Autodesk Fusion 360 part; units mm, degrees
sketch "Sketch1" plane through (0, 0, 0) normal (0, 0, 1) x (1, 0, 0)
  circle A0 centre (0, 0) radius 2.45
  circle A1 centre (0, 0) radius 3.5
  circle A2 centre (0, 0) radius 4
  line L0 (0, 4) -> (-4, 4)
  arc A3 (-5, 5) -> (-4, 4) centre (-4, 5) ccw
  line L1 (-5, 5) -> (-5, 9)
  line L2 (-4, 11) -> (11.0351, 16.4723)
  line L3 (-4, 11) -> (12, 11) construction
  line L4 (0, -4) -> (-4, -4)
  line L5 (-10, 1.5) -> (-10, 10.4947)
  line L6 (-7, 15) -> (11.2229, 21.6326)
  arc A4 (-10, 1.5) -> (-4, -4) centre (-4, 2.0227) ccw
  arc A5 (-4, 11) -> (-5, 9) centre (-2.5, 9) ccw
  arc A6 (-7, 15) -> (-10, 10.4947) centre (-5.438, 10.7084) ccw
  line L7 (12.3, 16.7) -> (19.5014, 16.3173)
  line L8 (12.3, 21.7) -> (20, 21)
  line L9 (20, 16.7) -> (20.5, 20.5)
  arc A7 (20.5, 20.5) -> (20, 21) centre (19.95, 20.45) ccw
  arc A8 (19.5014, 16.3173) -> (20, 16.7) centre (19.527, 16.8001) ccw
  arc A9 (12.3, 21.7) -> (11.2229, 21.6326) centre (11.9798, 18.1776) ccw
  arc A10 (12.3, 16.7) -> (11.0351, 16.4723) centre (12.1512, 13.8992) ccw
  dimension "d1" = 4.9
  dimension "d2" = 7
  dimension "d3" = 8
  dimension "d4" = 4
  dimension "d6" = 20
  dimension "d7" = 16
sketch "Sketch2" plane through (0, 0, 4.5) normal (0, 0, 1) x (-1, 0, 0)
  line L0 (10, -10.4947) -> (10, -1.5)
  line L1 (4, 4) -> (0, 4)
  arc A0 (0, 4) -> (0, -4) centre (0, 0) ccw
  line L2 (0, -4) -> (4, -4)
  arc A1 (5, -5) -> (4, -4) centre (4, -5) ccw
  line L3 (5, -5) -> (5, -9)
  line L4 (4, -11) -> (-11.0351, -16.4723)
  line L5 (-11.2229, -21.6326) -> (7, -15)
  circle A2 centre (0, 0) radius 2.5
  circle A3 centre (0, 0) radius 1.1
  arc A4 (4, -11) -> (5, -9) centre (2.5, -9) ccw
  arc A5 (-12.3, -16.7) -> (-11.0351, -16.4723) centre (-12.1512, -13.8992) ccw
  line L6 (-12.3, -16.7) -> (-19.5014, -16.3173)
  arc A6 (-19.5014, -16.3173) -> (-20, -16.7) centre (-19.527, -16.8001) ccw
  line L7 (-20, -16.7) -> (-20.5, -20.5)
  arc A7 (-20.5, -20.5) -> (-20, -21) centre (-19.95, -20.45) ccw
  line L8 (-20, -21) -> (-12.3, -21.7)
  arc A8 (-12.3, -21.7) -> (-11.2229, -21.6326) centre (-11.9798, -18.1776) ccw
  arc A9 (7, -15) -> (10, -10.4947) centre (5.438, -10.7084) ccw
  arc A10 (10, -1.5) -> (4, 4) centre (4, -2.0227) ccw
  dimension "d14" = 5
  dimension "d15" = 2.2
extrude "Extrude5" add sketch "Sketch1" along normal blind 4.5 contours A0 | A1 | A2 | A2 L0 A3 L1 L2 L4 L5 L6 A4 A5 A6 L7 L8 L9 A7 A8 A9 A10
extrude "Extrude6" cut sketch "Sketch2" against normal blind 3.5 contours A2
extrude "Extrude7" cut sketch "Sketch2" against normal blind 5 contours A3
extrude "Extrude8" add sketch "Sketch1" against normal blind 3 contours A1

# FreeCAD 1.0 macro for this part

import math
import FreeCAD as App
import Part
import Sketcher

V = App.Vector
Q = App.Units.Quantity

doc = App.newDocument("Part")
params = doc.addObject("Spreadsheet::Sheet", "Params")
for row, (alias, value) in enumerate([
    ("sketch1_radius", "4 mm"),
    ("sketch1_width", "4 mm"),
    ("sketch1_length", "16 mm"),
    ("sketch1_radius2", "1 mm"),
    ("sketch1_radius3", "2.5 mm"),
    ("pad1_length", "4.5 mm"),
    ("sketch2_diameter", "5 mm"),
    ("sketch2_diameter2", "2.2 mm"),
    ("pocket1_length", "3.5 mm"),
    ("sketch3_diameter", "2.2 mm"),
    ("pocket2_length", "5 mm"),
    ("sketch4_diameter", "7 mm"),
    ("sketch4_diameter2", "4.9 mm"),
    ("pad2_length", "3 mm"),
], start=1):
    params.set(f"A{row}", alias)
    params.set(f"B{row}", "=" + value)
    params.setAlias(f"B{row}", alias)

body = doc.addObject("PartDesign::Body", "Body")

# Sketch on XY plane
sketch1 = doc.addObject("Sketcher::SketchObject", "Sketch")
body.addObject(sketch1)
sketch1.AttachmentSupport = (doc.XY_Plane, [""])
sketch1.MapMode = "FlatFace"
sketch1.addGeometry([
    Part.ArcOfCircle(Part.Circle(V(0, 0, 0), V(0, 0, 1), 4), math.radians(-90), math.radians(90)),  # 0
    Part.LineSegment(V(0, 4, 0), V(-4, 4, 0)),  # 1
    Part.ArcOfCircle(Part.Circle(V(-4, 5, 0), V(0, 0, 1), 1), math.radians(180), math.radians(270)),  # 2
    Part.LineSegment(V(-5, 5, 0), V(-5, 9, 0)),  # 3
    Part.ArcOfCircle(Part.Circle(V(-2.5, 9, 0), V(0, 0, 1), 2.5), math.radians(127), math.radians(180)),  # 4
    Part.LineSegment(V(-4, 11, 0), V(11.04, 16.47, 0)),  # 5
    Part.ArcOfCircle(Part.Circle(V(12.15, 13.9, 0), V(0, 0, 1), 2.8), math.radians(87), math.radians(113)),  # 6
    Part.LineSegment(V(12.3, 16.7, 0), V(19.5, 16.32, 0)),  # 7
    Part.ArcOfCircle(Part.Circle(V(19.53, 16.8, 0), V(0, 0, 1), 0.48), math.radians(-93), math.radians(-12)),  # 8
    Part.LineSegment(V(20, 16.7, 0), V(20.5, 20.5, 0)),  # 9
    Part.ArcOfCircle(Part.Circle(V(19.95, 20.45, 0), V(0, 0, 1), 0.55), math.radians(5), math.radians(85)),  # 10
    Part.LineSegment(V(20, 21, 0), V(12.3, 21.7, 0)),  # 11
    Part.ArcOfCircle(Part.Circle(V(11.98, 18.18, 0), V(0, 0, 1), 3.54), math.radians(84.81), math.radians(102.36)),  # 12
    Part.LineSegment(V(11.22, 21.63, 0), V(-7, 15, 0)),  # 13
    Part.ArcOfCircle(Part.Circle(V(-5.44, 10.71, 0), V(0, 0, 1), 4.57), math.radians(110), math.radians(183)),  # 14
    Part.LineSegment(V(-10, 10.49, 0), V(-10, 1.5, 0)),  # 15
    Part.ArcOfCircle(Part.Circle(V(-4, 2.02, 0), V(0, 0, 1), 6.02), math.radians(-175), math.radians(-90)),  # 16
    Part.LineSegment(V(-4, -4, 0), V(0, -4, 0)),  # 17
], False)
sketch1.addConstraint([
    Sketcher.Constraint("Tangent", 0, 2, 1, 1),
    Sketcher.Constraint("Tangent", 1, 2, 2, 2),
    Sketcher.Constraint("Tangent", 2, 1, 3, 1),
    Sketcher.Constraint("Tangent", 3, 2, 4, 2),
    Sketcher.Constraint("Coincident", 4, 1, 5, 1),
    Sketcher.Constraint("Coincident", 5, 2, 6, 2),
    Sketcher.Constraint("Tangent", 6, 1, 7, 1),
    Sketcher.Constraint("Tangent", 7, 2, 8, 1),
    Sketcher.Constraint("Coincident", 8, 2, 9, 1),
    Sketcher.Constraint("Coincident", 9, 2, 10, 1),
    Sketcher.Constraint("Tangent", 10, 2, 11, 1),
    Sketcher.Constraint("Tangent", 11, 2, 12, 1),
    Sketcher.Constraint("Coincident", 12, 2, 13, 1),
    Sketcher.Constraint("Tangent", 13, 2, 14, 1),
    Sketcher.Constraint("Coincident", 14, 2, 15, 1),
    Sketcher.Constraint("Coincident", 15, 2, 16, 1),
    Sketcher.Constraint("Tangent", 16, 2, 17, 1),
    Sketcher.Constraint("Tangent", 17, 2, 0, 1),
    Sketcher.Constraint("Horizontal", 1),
    Sketcher.Constraint("Vertical", 3),
    Sketcher.Constraint("Vertical", 15),
    Sketcher.Constraint("Horizontal", 17),
    Sketcher.Constraint("Coincident", 0, 3, -1, 1),
    Sketcher.Constraint("Parallel", 5, 13),
    Sketcher.Constraint("Horizontal", 6, 1, 8, 2),
    Sketcher.Constraint("Vertical", 2, 3, 16, 3),
    Sketcher.Constraint("Vertical", 1, 2, 4, 1),
    Sketcher.Constraint("Vertical", 8, 2, 10, 2),
    Sketcher.Constraint("Vertical", 6, 1, 11, 2),
    Sketcher.Constraint("Equal", 17, 3),
    Sketcher.Constraint("Radius", 0, 4.0),
    Sketcher.Constraint("DistanceX", 1, 2, 1, 1, 4.0),
    Sketcher.Constraint("Angle", 5, Q("20 deg")),
    Sketcher.Constraint("Distance", 5, 16.0),
    Sketcher.Constraint("DistanceX", -1, 1, 8, 2, 20.0),
    Sketcher.Constraint("DistanceX", 13, 2, -1, 1, 7.0),
    Sketcher.Constraint("Radius", 2, 1.0),
    Sketcher.Constraint("DistanceY", 4, 1, 13, 2, 4.0),
    Sketcher.Constraint("Radius", 4, 2.5),
    Sketcher.Constraint("DistanceY", -1, 1, 10, 2, 21.0),
    Sketcher.Constraint("DistanceX", 14, 2, -1, 1, 10.0),
    Sketcher.Constraint("Radius", 12, 3.537),
    Sketcher.Constraint("Radius", 14, 4.567),
    Sketcher.Constraint("DistanceY", 6, 1, 11, 2, 5.0),
    Sketcher.Constraint("DistanceY", -1, 1, 8, 3, 16.8),
    Sketcher.Constraint("DistanceX", -1, 1, 6, 1, 12.3),
    Sketcher.Constraint("DistanceY", -1, 1, 6, 1, 16.7),
    Sketcher.Constraint("DistanceX", -1, 1, 9, 2, 20.5),
    Sketcher.Constraint("DistanceY", -1, 1, 9, 2, 20.5),
    Sketcher.Constraint("DistanceY", -1, 1, 15, 2, 1.5),
    Sketcher.Constraint("Radius", 6, 2.8047),
])
sketch1.setExpression("Constraints[30]", "Params.sketch1_radius")
sketch1.setExpression("Constraints[31]", "Params.sketch1_width")
sketch1.setExpression("Constraints[33]", "Params.sketch1_length")
sketch1.setExpression("Constraints[36]", "Params.sketch1_radius2")
sketch1.setExpression("Constraints[38]", "Params.sketch1_radius3")
pad1 = doc.addObject("PartDesign::Pad", "Pad")
body.addObject(pad1)
pad1.Profile = sketch1
pad1.setExpression("Length", "Params.pad1_length")

# Sketch on XY plane
sketch2 = doc.addObject("Sketcher::SketchObject", "Sketch001")
body.addObject(sketch2)
sketch2.AttachmentSupport = (doc.XY_Plane, [""])
sketch2.MapMode = "FlatFace"
sketch2.AttachmentOffset = App.Placement(V(0, 0, 4.5), App.Rotation())
sketch2.addGeometry([
    Part.Circle(V(0, 0, 0), V(0, 0, 1), 2.5),
    Part.Circle(V(0, 0, 0), V(0, 0, 1), 1.1),
], False)
sketch2.addConstraint([
    Sketcher.Constraint("Coincident", 0, 3, -1, 1),
    Sketcher.Constraint("Coincident", 1, 3, -1, 1),
    Sketcher.Constraint("Diameter", 0, 5.0),
    Sketcher.Constraint("Diameter", 1, 2.2),
])
sketch2.setExpression("Constraints[2]", "Params.sketch2_diameter")
sketch2.setExpression("Constraints[3]", "Params.sketch2_diameter2")
pocket1 = doc.addObject("PartDesign::Pocket", "Pocket")
body.addObject(pocket1)
pocket1.Profile = sketch2
pocket1.setExpression("Length", "Params.pocket1_length")

# Sketch on XY plane
sketch3 = doc.addObject("Sketcher::SketchObject", "Sketch002")
body.addObject(sketch3)
sketch3.AttachmentSupport = (doc.XY_Plane, [""])
sketch3.MapMode = "FlatFace"
sketch3.AttachmentOffset = App.Placement(V(0, 0, 4.5), App.Rotation())
sketch3.addGeometry(Part.Circle(V(0, 0, 0), V(0, 0, 1), 1.1), False)
sketch3.addConstraint([
    Sketcher.Constraint("Coincident", 0, 3, -1, 1),
    Sketcher.Constraint("Diameter", 0, 2.2),
])
sketch3.setExpression("Constraints[1]", "Params.sketch3_diameter")
pocket2 = doc.addObject("PartDesign::Pocket", "Pocket001")
body.addObject(pocket2)
pocket2.Profile = sketch3
pocket2.setExpression("Length", "Params.pocket2_length")

# Sketch on XY plane
sketch4 = doc.addObject("Sketcher::SketchObject", "Sketch003")
body.addObject(sketch4)
sketch4.AttachmentSupport = (doc.XY_Plane, [""])
sketch4.MapMode = "FlatFace"
sketch4.addGeometry([
    Part.Circle(V(0, 0, 0), V(0, 0, 1), 3.5),
    Part.Circle(V(0, 0, 0), V(0, 0, 1), 2.5),
], False)
sketch4.addConstraint([
    Sketcher.Constraint("Coincident", 0, 3, -1, 1),
    Sketcher.Constraint("Coincident", 1, 3, -1, 1),
    Sketcher.Constraint("Diameter", 0, 7.0),
    Sketcher.Constraint("Diameter", 1, 4.9),
])
sketch4.setExpression("Constraints[2]", "Params.sketch4_diameter")
sketch4.setExpression("Constraints[3]", "Params.sketch4_diameter2")
pad2 = doc.addObject("PartDesign::Pad", "Pad001")
body.addObject(pad2)
pad2.Profile = sketch4
pad2.setExpression("Length", "Params.pad2_length")
pad2.Reversed = True

doc.recompute()
